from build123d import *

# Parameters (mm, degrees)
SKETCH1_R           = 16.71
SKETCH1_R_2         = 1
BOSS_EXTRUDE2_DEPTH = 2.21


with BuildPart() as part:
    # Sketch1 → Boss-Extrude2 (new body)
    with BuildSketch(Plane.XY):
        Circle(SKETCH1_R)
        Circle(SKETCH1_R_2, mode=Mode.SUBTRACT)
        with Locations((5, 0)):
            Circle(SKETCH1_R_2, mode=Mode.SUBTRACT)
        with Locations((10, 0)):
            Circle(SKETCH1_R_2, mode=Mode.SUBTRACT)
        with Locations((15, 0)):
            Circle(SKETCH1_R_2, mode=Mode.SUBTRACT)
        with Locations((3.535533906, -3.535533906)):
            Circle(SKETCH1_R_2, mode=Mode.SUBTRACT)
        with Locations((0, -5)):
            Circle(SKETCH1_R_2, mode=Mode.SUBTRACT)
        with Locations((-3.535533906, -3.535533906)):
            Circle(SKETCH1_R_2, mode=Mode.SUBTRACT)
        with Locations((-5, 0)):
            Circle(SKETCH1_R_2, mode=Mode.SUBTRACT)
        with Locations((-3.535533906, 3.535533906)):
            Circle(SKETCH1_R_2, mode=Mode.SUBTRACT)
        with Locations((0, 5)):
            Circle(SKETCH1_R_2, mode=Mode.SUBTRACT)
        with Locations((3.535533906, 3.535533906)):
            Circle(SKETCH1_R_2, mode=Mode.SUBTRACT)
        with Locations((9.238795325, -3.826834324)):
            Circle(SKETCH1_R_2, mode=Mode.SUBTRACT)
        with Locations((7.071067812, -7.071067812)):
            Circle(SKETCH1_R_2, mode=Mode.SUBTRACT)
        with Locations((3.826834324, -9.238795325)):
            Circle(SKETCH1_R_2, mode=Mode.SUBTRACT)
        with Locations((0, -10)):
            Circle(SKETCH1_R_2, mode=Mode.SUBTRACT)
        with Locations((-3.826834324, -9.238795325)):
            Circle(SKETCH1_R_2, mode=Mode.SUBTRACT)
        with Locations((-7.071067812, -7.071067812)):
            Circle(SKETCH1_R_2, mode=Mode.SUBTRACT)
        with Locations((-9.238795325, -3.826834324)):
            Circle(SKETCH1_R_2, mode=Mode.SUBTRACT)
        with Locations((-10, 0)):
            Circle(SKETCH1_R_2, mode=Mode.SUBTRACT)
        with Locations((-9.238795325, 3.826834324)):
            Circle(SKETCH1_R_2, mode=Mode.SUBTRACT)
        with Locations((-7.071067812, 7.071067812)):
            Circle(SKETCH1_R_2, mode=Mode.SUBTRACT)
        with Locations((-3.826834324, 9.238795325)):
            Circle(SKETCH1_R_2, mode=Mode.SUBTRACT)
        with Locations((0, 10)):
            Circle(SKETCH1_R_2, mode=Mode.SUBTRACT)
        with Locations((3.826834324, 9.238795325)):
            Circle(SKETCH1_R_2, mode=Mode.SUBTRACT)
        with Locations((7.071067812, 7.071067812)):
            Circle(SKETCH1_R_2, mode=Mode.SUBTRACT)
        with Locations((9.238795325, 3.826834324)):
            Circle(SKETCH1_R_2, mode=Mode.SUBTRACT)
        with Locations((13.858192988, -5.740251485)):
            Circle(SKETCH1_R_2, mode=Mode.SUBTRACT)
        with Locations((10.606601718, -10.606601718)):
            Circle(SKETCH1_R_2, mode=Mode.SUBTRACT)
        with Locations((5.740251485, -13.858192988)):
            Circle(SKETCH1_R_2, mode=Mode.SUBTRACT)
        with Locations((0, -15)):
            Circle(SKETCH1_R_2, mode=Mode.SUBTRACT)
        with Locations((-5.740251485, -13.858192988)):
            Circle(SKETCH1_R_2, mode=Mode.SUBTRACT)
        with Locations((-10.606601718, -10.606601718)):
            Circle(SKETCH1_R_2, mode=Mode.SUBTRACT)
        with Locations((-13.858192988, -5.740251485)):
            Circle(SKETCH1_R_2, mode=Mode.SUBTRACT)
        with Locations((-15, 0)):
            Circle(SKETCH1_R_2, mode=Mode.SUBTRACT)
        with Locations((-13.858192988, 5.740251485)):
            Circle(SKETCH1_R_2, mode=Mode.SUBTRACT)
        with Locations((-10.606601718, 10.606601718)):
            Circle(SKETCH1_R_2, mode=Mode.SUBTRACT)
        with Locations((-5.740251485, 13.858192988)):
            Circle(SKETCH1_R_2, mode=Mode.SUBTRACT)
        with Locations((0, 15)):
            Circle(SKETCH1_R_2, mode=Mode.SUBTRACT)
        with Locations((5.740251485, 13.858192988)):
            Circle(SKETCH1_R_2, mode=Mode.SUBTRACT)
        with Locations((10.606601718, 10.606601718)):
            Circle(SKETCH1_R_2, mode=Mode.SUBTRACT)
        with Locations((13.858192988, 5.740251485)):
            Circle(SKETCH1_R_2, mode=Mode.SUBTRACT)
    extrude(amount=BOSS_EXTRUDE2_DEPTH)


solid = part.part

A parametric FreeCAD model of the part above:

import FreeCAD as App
import Part
import Sketcher

V = App.Vector

doc = App.newDocument("Part")
body = doc.addObject("PartDesign::Body", "Body")

# Sketch on XY plane
sketch1 = doc.addObject("Sketcher::SketchObject", "Sketch")
body.addObject(sketch1)
sketch1.AttachmentSupport = (doc.XY_Plane, [""])
sketch1.MapMode = "FlatFace"
sketch1.addGeometry(Part.Circle(V(0, 0, 0), V(0, 0, 1), 16.7), False)
sketch1.addGeometry(Part.Circle(V(-10.6, -10.6, 0), V(0, 0, 1), 1), False)
sketch1.addGeometry(Part.Circle(V(-5.7, -13.9, 0), V(0, 0, 1), 1), False)
sketch1.addGeometry(Part.Circle(V(-3.8, -9.2, 0), V(0, 0, 1), 1), False)
sketch1.addGeometry(Part.Circle(V(-13.9, -5.7, 0), V(0, 0, 1), 1), False)
sketch1.addGeometry(Part.Circle(V(-9.2, -3.8, 0), V(0, 0, 1), 1), False)
sketch1.addGeometry(Part.Circle(V(-7.1, -7.1, 0), V(0, 0, 1), 1), False)
sketch1.addGeometry(Part.Circle(V(-3.5, -3.5, 0), V(0, 0, 1), 1), False)
sketch1.addGeometry(Part.Circle(V(0, -15, 0), V(0, 0, 1), 1), False)
sketch1.addGeometry(Part.Circle(V(5.7, -13.9, 0), V(0, 0, 1), 1), False)
sketch1.addGeometry(Part.Circle(V(0, -10, 0), V(0, 0, 1), 1), False)
sketch1.addGeometry(Part.Circle(V(3.8, -9.2, 0), V(0, 0, 1), 1), False)
sketch1.addGeometry(Part.Circle(V(10.6, -10.6, 0), V(0, 0, 1), 1), False)
sketch1.addGeometry(Part.Circle(V(0, -5, 0), V(0, 0, 1), 1), False)
sketch1.addGeometry(Part.Circle(V(7.1, -7.1, 0), V(0, 0, 1), 1), False)
sketch1.addGeometry(Part.Circle(V(3.5, -3.5, 0), V(0, 0, 1), 1), False)
sketch1.addGeometry(Part.Circle(V(13.9, -5.7, 0), V(0, 0, 1), 1), False)
sketch1.addGeometry(Part.Circle(V(9.2, -3.8, 0), V(0, 0, 1), 1), False)
sketch1.addGeometry(Part.Circle(V(-15, 0, 0), V(0, 0, 1), 1), False)
sketch1.addGeometry(Part.Circle(V(-10, 0, 0), V(0, 0, 1), 1), False)
sketch1.addGeometry(Part.Circle(V(-9.2, 3.8, 0), V(0, 0, 1), 1), False)
sketch1.addGeometry(Part.Circle(V(-13.9, 5.7, 0), V(0, 0, 1), 1), False)
sketch1.addGeometry(Part.Circle(V(-5, 0, 0), V(0, 0, 1), 1), False)
sketch1.addGeometry(Part.Circle(V(-3.5, 3.5, 0), V(0, 0, 1), 1), False)
sketch1.addGeometry(Part.Circle(V(-7.1, 7.1, 0), V(0, 0, 1), 1), False)
sketch1.addGeometry(Part.Circle(V(-10.6, 10.6, 0), V(0, 0, 1), 1), False)
sketch1.addGeometry(Part.Circle(V(-3.8, 9.2, 0), V(0, 0, 1), 1), False)
sketch1.addGeometry(Part.Circle(V(-5.7, 13.9, 0), V(0, 0, 1), 1), False)
sketch1.addGeometry(Part.Circle(V(0, 0, 0), V(0, 0, 1), 1), False)
sketch1.addGeometry(Part.Circle(V(3.5, 3.5, 0), V(0, 0, 1), 1), False)
sketch1.addGeometry(Part.Circle(V(5, 0, 0), V(0, 0, 1), 1), False)
sketch1.addGeometry(Part.Circle(V(0, 5, 0), V(0, 0, 1), 1), False)
sketch1.addGeometry(Part.Circle(V(7.1, 7.1, 0), V(0, 0, 1), 1), False)
sketch1.addGeometry(Part.Circle(V(10, 0, 0), V(0, 0, 1), 1), False)
sketch1.addGeometry(Part.Circle(V(9.2, 3.8, 0), V(0, 0, 1), 1), False)
sketch1.addGeometry(Part.Circle(V(15, 0, 0), V(0, 0, 1), 1), False)
sketch1.addGeometry(Part.Circle(V(13.9, 5.7, 0), V(0, 0, 1), 1), False)
sketch1.addGeometry(Part.Circle(V(3.8, 9.2, 0), V(0, 0, 1), 1), False)
sketch1.addGeometry(Part.Circle(V(0, 10, 0), V(0, 0, 1), 1), False)
sketch1.addGeometry(Part.Circle(V(0, 15, 0), V(0, 0, 1), 1), False)
sketch1.addGeometry(Part.Circle(V(5.7, 13.9, 0), V(0, 0, 1), 1), False)
sketch1.addGeometry(Part.Circle(V(10.6, 10.6, 0), V(0, 0, 1), 1), False)
sketch1.addConstraint(Sketcher.Constraint("Coincident", 0, 3, -1, 1))
sketch1.addConstraint(Sketcher.Constraint("Coincident", 28, 3, -1, 1))
sketch1.addConstraint(Sketcher.Constraint("Equal", 1, 2))
sketch1.addConstraint(Sketcher.Constraint("Equal", 2, 3))
sketch1.addConstraint(Sketcher.Constraint("Equal", 3, 4))
sketch1.addConstraint(Sketcher.Constraint("Equal", 4, 5))
sketch1.addConstraint(Sketcher.Constraint("Equal", 5, 6))
sketch1.addConstraint(Sketcher.Constraint("Equal", 6, 7))
sketch1.addConstraint(Sketcher.Constraint("Equal", 7, 8))
sketch1.addConstraint(Sketcher.Constraint("Equal", 8, 9))
sketch1.addConstraint(Sketcher.Constraint("Equal", 9, 10))
sketch1.addConstraint(Sketcher.Constraint("Equal", 10, 11))
sketch1.addConstraint(Sketcher.Constraint("Equal", 11, 12))
sketch1.addConstraint(Sketcher.Constraint("Equal", 12, 13))
sketch1.addConstraint(Sketcher.Constraint("Equal", 13, 14))
sketch1.addConstraint(Sketcher.Constraint("Equal", 14, 15))
sketch1.addConstraint(Sketcher.Constraint("Equal", 15, 16))
sketch1.addConstraint(Sketcher.Constraint("Equal", 16, 17))
sketch1.addConstraint(Sketcher.Constraint("Equal", 17, 18))
sketch1.addConstraint(Sketcher.Constraint("Equal", 18, 19))
sketch1.addConstraint(Sketcher.Constraint("Equal", 19, 20))
sketch1.addConstraint(Sketcher.Constraint("Equal", 20, 21))
sketch1.addConstraint(Sketcher.Constraint("Equal", 21, 22))
sketch1.addConstraint(Sketcher.Constraint("Equal", 22, 23))
sketch1.addConstraint(Sketcher.Constraint("Equal", 23, 24))
sketch1.addConstraint(Sketcher.Constraint("Equal", 24, 25))
sketch1.addConstraint(Sketcher.Constraint("Equal", 25, 26))
sketch1.addConstraint(Sketcher.Constraint("Equal", 26, 27))
sketch1.addConstraint(Sketcher.Constraint("Equal", 27, 28))
sketch1.addConstraint(Sketcher.Constraint("Equal", 28, 29))
sketch1.addConstraint(Sketcher.Constraint("Equal", 29, 30))
sketch1.addConstraint(Sketcher.Constraint("Equal", 30, 31))
sketch1.addConstraint(Sketcher.Constraint("Equal", 31, 32))
sketch1.addConstraint(Sketcher.Constraint("Equal", 32, 33))
sketch1.addConstraint(Sketcher.Constraint("Equal", 33, 34))
sketch1.addConstraint(Sketcher.Constraint("Equal", 34, 35))
sketch1.addConstraint(Sketcher.Constraint("Equal", 35, 36))
sketch1.addConstraint(Sketcher.Constraint("Equal", 36, 37))
sketch1.addConstraint(Sketcher.Constraint("Equal", 37, 38))
sketch1.addConstraint(Sketcher.Constraint("Equal", 38, 39))
sketch1.addConstraint(Sketcher.Constraint("Equal", 39, 40))
sketch1.addConstraint(Sketcher.Constraint("Equal", 40, 41))
sketch1.addConstraint(Sketcher.Constraint("Symmetric", 17, 3, 20, 3, -1, 1))
sketch1.addConstraint(Sketcher.Constraint("Symmetric", 16, 3, 21, 3, -1, 1))
sketch1.addConstraint(Sketcher.Constraint("Symmetric", 15, 3, 23, 3, -1, 1))
sketch1.addConstraint(Sketcher.Constraint("Symmetric", 14, 3, 24, 3, -1, 1))
sketch1.addConstraint(Sketcher.Constraint("Symmetric", 12, 3, 25, 3, -1, 1))
sketch1.addConstraint(Sketcher.Constraint("Symmetric", 11, 3, 26, 3, -1, 1))
sketch1.addConstraint(Sketcher.Constraint("Symmetric", 9, 3, 27, 3, -1, 1))
sketch1.addConstraint(Sketcher.Constraint("Symmetric", 7, 3, 29, 3, -1, 1))
sketch1.addConstraint(Sketcher.Constraint("Symmetric", 22, 3, 30, 3, -1, 1))
sketch1.addConstraint(Sketcher.Constraint("Symmetric", 13, 3, 31, 3, -1, 1))
sketch1.addConstraint(Sketcher.Constraint("Symmetric", 6, 3, 32, 3, -1, 1))
sketch1.addConstraint(Sketcher.Constraint("Symmetric", 19, 3, 33, 3, -1, 1))
sketch1.addConstraint(Sketcher.Constraint("Symmetric", 5, 3, 34, 3, -1, 1))
sketch1.addConstraint(Sketcher.Constraint("Symmetric", 18, 3, 35, 3, -1, 1))
sketch1.addConstraint(Sketcher.Constraint("Symmetric", 4, 3, 36, 3, -1, 1))
sketch1.addConstraint(Sketcher.Constraint("Symmetric", 3, 3, 37, 3, -1, 1))
sketch1.addConstraint(Sketcher.Constraint("Symmetric", 10, 3, 38, 3, -1, 1))
sketch1.addConstraint(Sketcher.Constraint("Symmetric", 8, 3, 39, 3, -1, 1))
sketch1.addConstraint(Sketcher.Constraint("Symmetric", 2, 3, 40, 3, -1, 1))
sketch1.addConstraint(Sketcher.Constraint("Symmetric", 1, 3, 41, 3, -1, 1))
sketch1.addConstraint(Sketcher.Constraint("Symmetric", 2, 3, 9, 3, -2))
sketch1.addConstraint(Sketcher.Constraint("Symmetric", 3, 3, 11, 3, -2))
sketch1.addConstraint(Sketcher.Constraint("Symmetric", 1, 3, 12, 3, -2))
sketch1.addConstraint(Sketcher.Constraint("Symmetric", 6, 3, 14, 3, -2))
sketch1.addConstraint(Sketcher.Constraint("Symmetric", 7, 3, 15, 3, -2))
sketch1.addConstraint(Sketcher.Constraint("Symmetric", 4, 3, 16, 3, -2))
sketch1.addConstraint(Sketcher.Constraint("Symmetric", 5, 3, 17, 3, -2))
sketch1.addConstraint(Sketcher.Constraint("PointOnObject", 8, 3, -2))
sketch1.addConstraint(Sketcher.Constraint("PointOnObject", 10, 3, -2))
sketch1.addConstraint(Sketcher.Constraint("PointOnObject", 13, 3, -2))
sketch1.addConstraint(Sketcher.Constraint("PointOnObject", 18, 3, -1))
sketch1.addConstraint(Sketcher.Constraint("PointOnObject", 19, 3, -1))
sketch1.addConstraint(Sketcher.Constraint("PointOnObject", 22, 3, -1))
sketch1.addConstraint(Sketcher.Constraint("Diameter", 1, 2.0))
sketch1.addConstraint(Sketcher.Constraint("Diameter", 0, 33.42))
sketch1.addConstraint(Sketcher.Constraint("DistanceY", 8, 3, -1, 1, 15.0))
sketch1.addConstraint(Sketcher.Constraint("DistanceY", 10, 3, -1, 1, 10.0))
sketch1.addConstraint(Sketcher.Constraint("DistanceY", 13, 3, -1, 1, 5.0))
sketch1.addConstraint(Sketcher.Constraint("DistanceX", 18, 3, -1, 1, 15.0))
sketch1.addConstraint(Sketcher.Constraint("DistanceX", 19, 3, -1, 1, 10.0))
sketch1.addConstraint(Sketcher.Constraint("DistanceX", 22, 3, -1, 1, 5.0))
sketch1.addConstraint(Sketcher.Constraint("DistanceX", 1, 3, -1, 1, 10.606602))
sketch1.addConstraint(Sketcher.Constraint("DistanceY", 1, 3, -1, 1, 10.606602))
sketch1.addConstraint(Sketcher.Constraint("DistanceX", 3, 3, 7, 3, 0.2913))
sketch1.addConstraint(Sketcher.Constraint("DistanceY", 5, 3, 7, 3, 0.2913))
sketch1.addConstraint(Sketcher.Constraint("DistanceX", 2, 3, -1, 1, 5.740251))
sketch1.addConstraint(Sketcher.Constraint("DistanceY", 4, 3, -1, 1, 5.740251))
sketch1.addConstraint(Sketcher.Constraint("DistanceY", 2, 3, 1, 3, 3.251591))
sketch1.addConstraint(Sketcher.Constraint("DistanceX", 4, 3, 1, 3, 3.251591))
sketch1.addConstraint(Sketcher.Constraint("DistanceX", 4, 3, 3, 3, 10.031359))
sketch1.addConstraint(Sketcher.Constraint("DistanceX", 5, 3, 3, 3, 5.411961))
sketch1.addConstraint(Sketcher.Constraint("DistanceY", 3, 3, 5, 3, 5.411961))
sketch1.addConstraint(Sketcher.Constraint("DistanceY", 2, 3, 5, 3, 10.031359))
sketch1.addConstraint(Sketcher.Constraint("DistanceX", 6, 3, 9, 3, 12.811319))
sketch1.addConstraint(Sketcher.Constraint("DistanceY", 6, 3, -1, 1, 7.071068))
pad1 = doc.addObject("PartDesign::Pad", "Pad")
body.addObject(pad1)
pad1.Profile = sketch1
pad1.Length = 2.21

doc.recompute()
